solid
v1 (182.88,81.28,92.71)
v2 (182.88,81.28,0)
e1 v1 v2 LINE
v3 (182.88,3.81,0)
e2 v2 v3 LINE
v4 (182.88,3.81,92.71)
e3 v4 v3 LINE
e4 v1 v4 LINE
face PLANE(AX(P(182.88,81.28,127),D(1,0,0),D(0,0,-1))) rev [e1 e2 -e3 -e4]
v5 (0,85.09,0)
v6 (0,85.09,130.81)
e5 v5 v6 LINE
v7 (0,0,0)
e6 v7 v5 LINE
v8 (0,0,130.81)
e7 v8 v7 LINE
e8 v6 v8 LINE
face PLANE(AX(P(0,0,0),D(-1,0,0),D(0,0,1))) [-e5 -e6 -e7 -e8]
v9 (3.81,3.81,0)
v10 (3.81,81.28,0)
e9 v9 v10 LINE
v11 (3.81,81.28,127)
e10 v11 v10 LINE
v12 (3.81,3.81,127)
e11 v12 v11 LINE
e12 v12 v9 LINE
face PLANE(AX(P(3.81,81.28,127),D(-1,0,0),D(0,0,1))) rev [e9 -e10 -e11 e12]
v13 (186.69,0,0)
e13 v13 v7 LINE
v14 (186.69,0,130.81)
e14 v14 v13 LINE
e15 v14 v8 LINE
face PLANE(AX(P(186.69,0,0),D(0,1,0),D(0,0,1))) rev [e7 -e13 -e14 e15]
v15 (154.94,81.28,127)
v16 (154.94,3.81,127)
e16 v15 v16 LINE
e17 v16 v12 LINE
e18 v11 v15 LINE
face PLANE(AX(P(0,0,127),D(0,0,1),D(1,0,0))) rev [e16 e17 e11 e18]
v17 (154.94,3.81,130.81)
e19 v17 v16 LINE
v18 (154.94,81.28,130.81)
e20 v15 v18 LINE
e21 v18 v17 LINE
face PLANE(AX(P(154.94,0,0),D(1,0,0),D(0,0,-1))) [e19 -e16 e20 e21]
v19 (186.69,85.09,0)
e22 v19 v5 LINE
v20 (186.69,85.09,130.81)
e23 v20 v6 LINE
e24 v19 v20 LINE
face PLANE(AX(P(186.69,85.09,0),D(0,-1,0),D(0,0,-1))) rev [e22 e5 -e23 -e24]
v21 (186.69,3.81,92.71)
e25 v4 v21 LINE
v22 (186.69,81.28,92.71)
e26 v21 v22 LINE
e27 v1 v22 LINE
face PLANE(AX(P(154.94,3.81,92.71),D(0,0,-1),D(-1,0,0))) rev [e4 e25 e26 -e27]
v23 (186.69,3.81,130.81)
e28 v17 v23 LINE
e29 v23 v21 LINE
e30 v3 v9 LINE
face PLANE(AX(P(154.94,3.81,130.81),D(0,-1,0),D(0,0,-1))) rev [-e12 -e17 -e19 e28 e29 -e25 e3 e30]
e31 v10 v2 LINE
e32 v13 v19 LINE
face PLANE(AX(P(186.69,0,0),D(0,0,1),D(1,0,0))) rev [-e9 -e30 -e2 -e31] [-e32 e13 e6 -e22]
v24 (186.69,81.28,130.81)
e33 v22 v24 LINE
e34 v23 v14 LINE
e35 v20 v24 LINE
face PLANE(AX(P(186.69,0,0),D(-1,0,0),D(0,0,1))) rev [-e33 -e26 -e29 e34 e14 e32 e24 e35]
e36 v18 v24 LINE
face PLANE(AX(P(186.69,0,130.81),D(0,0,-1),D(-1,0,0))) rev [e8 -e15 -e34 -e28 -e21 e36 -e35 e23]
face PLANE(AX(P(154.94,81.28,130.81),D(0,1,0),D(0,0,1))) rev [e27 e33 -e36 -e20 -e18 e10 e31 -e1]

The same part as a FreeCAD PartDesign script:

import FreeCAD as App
import Part
import Sketcher

V = App.Vector
Q = App.Units.Quantity


def add_polygon(sketch, points):
    """Adds a closed chain of lines whose ends are joined by coincident constraints."""
    first, n = sketch.GeometryCount, len(points)
    for a, b in zip(points, points[1:] + points[:1]):
        sketch.addGeometry(Part.LineSegment(App.Vector(*a, 0), App.Vector(*b, 0)), False)
    for i in range(n):
        sketch.addConstraint(Sketcher.Constraint("Coincident", first + i, 2, first + (i + 1) % n, 1))

doc = App.newDocument("Part")
params = doc.addObject("Spreadsheet::Sheet", "Params")
for row, (alias, value) in enumerate([
    ("sketch1_width", "3.35 in"),
    ("sketch1_height", "5.15 in"),
    ("pad1_length", "7.35 in"),
    ("sketch2_height", "1.5 in"),
    ("sketch2_width", "3.05 in"),
    ("pocket1_length", "1.25 in"),
    ("sketch3_width", "7.05 in"),
    ("sketch3_height", "3.05 in"),
    ("pocket2_length", "5 in"),
], start=1):
    params.set(f"A{row}", alias)
    params.set(f"B{row}", "=" + value)
    params.setAlias(f"B{row}", alias)

body = doc.addObject("PartDesign::Body", "Body")

sketch1 = doc.addObject("Sketcher::SketchObject", "Sketch")
body.addObject(sketch1)
sketch1.AttachmentSupport = (doc.YZ_Plane, [""])
sketch1.MapMode = "FlatFace"
add_polygon(sketch1, [(0, 131), (0, 0), (85, 0), (85, 131)])
sketch1.addConstraint([
    Sketcher.Constraint("Vertical", 0),
    Sketcher.Constraint("Horizontal", 1),
    Sketcher.Constraint("Vertical", 2),
    Sketcher.Constraint("Horizontal", 3),
    Sketcher.Constraint("Coincident", 0, 2, -1, 1),
    Sketcher.Constraint("DistanceX", 1, 1, 1, 2, Q("3.35 in")),
    Sketcher.Constraint("DistanceY", 0, 2, 0, 1, Q("5.15 in")),
])
sketch1.setExpression("Constraints[9]", "Params.sketch1_width")
sketch1.setExpression("Constraints[10]", "Params.sketch1_height")
pad1 = doc.addObject("PartDesign::Pad", "Pad")
body.addObject(pad1)
pad1.Profile = sketch1
pad1.setExpression("Length", "Params.pad1_length")

sketch2 = doc.addObject("Sketcher::SketchObject", "Sketch001")
body.addObject(sketch2)
sketch2.AttachmentSupport = (doc.YZ_Plane, [""])
sketch2.MapMode = "FlatFace"
sketch2.AttachmentOffset = App.Placement(V(0, 0, 7.35 * 25.4), App.Rotation())
add_polygon(sketch2, [(4, 131), (4, 93), (81, 93), (81, 131)])
sketch2.addConstraint([
    Sketcher.Constraint("Vertical", 0),
    Sketcher.Constraint("Horizontal", 1),
    Sketcher.Constraint("Vertical", 2),
    Sketcher.Constraint("Horizontal", 3),
    Sketcher.Constraint("DistanceY", 0, 2, 0, 1, Q("1.5 in")),
    Sketcher.Constraint("DistanceX", 1, 1, 1, 2, Q("3.05 in")),
    Sketcher.Constraint("DistanceX", -1, 1, 1, 2, Q("3.2 in")),
    Sketcher.Constraint("DistanceY", -1, 1, 0, 2, Q("3.65 in")),
])
sketch2.setExpression("Constraints[8]", "Params.sketch2_height")
sketch2.setExpression("Constraints[9]", "Params.sketch2_width")
pocket1 = doc.addObject("PartDesign::Pocket", "Pocket")
body.addObject(pocket1)
pocket1.Profile = sketch2
pocket1.setExpression("Length", "Params.pocket1_length")

sketch3 = doc.addObject("Sketcher::SketchObject", "Sketch002")
body.addObject(sketch3)
sketch3.AttachmentSupport = (doc.XY_Plane, [""])
sketch3.MapMode = "FlatFace"
add_polygon(sketch3, [(4, 4), (4, 81), (183, 81), (183, 4)])
sketch3.addConstraint([
    Sketcher.Constraint("Vertical", 0),
    Sketcher.Constraint("Horizontal", 1),
    Sketcher.Constraint("Vertical", 2),
    Sketcher.Constraint("Horizontal", 3),
    Sketcher.Constraint("DistanceX", 1, 1, 1, 2, Q("7.05 in")),
    Sketcher.Constraint("DistanceY", 0, 1, 0, 2, Q("3.05 in")),
    Sketcher.Constraint("DistanceY", -1, 1, 0, 2, Q("3.2 in")),
    Sketcher.Constraint("DistanceX", -1, 1, 1, 2, Q("7.2 in")),
])
sketch3.setExpression("Constraints[8]", "Params.sketch3_width")
sketch3.setExpression("Constraints[9]", "Params.sketch3_height")
pocket2 = doc.addObject("PartDesign::Pocket", "Pocket001")
body.addObject(pocket2)
pocket2.Profile = sketch3
pocket2.setExpression("Length", "Params.pocket2_length")
pocket2.Reversed = True

doc.recompute()
